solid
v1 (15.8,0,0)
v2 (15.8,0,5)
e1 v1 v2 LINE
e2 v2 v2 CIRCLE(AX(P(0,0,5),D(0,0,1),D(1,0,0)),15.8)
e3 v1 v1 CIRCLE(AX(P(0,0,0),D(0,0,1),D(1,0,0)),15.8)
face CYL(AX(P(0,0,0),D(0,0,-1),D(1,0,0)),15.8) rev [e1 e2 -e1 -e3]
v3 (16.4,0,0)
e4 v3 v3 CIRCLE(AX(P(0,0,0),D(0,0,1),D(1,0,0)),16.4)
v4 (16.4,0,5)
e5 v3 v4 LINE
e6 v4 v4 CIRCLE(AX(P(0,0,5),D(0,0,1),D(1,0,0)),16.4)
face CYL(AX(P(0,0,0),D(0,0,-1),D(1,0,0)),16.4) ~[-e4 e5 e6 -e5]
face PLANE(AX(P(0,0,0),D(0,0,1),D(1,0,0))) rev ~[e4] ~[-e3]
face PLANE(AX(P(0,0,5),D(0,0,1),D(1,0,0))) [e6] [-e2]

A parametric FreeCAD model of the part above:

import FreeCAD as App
import Part
import Sketcher
from FreeCAD import Vector
Q = App.Units.Quantity

doc = App.newDocument("Part")
body = doc.addObject("PartDesign::Body", "Body")

# Sketch on XY plane
sketch1 = body.newObject("Sketcher::SketchObject", "Sketch")
sketch1.AttachmentSupport = (doc.getObject("XY_Plane"), [""])
sketch1.MapMode = "FlatFace"
sketch1.addGeometry([
    Part.Circle(Vector(0, 0, 0), Vector(0, 0, 1), 16),
    Part.Circle(Vector(0, 0, 0), Vector(0, 0, 1), 16),
], False)
sketch1.addConstraint([
    Sketcher.Constraint("Coincident", 0, 3, -1, 1),
    Sketcher.Constraint("Coincident", 1, 3, -1, 1),
    Sketcher.Constraint("Diameter", 0, Q("32.8 mm")),
    Sketcher.Constraint("Diameter", 1, Q("31.6 mm")),
])
pad1 = body.newObject("PartDesign::Pad", "Pad")
pad1.Profile = sketch1
pad1.Length = 5

doc.recompute()
